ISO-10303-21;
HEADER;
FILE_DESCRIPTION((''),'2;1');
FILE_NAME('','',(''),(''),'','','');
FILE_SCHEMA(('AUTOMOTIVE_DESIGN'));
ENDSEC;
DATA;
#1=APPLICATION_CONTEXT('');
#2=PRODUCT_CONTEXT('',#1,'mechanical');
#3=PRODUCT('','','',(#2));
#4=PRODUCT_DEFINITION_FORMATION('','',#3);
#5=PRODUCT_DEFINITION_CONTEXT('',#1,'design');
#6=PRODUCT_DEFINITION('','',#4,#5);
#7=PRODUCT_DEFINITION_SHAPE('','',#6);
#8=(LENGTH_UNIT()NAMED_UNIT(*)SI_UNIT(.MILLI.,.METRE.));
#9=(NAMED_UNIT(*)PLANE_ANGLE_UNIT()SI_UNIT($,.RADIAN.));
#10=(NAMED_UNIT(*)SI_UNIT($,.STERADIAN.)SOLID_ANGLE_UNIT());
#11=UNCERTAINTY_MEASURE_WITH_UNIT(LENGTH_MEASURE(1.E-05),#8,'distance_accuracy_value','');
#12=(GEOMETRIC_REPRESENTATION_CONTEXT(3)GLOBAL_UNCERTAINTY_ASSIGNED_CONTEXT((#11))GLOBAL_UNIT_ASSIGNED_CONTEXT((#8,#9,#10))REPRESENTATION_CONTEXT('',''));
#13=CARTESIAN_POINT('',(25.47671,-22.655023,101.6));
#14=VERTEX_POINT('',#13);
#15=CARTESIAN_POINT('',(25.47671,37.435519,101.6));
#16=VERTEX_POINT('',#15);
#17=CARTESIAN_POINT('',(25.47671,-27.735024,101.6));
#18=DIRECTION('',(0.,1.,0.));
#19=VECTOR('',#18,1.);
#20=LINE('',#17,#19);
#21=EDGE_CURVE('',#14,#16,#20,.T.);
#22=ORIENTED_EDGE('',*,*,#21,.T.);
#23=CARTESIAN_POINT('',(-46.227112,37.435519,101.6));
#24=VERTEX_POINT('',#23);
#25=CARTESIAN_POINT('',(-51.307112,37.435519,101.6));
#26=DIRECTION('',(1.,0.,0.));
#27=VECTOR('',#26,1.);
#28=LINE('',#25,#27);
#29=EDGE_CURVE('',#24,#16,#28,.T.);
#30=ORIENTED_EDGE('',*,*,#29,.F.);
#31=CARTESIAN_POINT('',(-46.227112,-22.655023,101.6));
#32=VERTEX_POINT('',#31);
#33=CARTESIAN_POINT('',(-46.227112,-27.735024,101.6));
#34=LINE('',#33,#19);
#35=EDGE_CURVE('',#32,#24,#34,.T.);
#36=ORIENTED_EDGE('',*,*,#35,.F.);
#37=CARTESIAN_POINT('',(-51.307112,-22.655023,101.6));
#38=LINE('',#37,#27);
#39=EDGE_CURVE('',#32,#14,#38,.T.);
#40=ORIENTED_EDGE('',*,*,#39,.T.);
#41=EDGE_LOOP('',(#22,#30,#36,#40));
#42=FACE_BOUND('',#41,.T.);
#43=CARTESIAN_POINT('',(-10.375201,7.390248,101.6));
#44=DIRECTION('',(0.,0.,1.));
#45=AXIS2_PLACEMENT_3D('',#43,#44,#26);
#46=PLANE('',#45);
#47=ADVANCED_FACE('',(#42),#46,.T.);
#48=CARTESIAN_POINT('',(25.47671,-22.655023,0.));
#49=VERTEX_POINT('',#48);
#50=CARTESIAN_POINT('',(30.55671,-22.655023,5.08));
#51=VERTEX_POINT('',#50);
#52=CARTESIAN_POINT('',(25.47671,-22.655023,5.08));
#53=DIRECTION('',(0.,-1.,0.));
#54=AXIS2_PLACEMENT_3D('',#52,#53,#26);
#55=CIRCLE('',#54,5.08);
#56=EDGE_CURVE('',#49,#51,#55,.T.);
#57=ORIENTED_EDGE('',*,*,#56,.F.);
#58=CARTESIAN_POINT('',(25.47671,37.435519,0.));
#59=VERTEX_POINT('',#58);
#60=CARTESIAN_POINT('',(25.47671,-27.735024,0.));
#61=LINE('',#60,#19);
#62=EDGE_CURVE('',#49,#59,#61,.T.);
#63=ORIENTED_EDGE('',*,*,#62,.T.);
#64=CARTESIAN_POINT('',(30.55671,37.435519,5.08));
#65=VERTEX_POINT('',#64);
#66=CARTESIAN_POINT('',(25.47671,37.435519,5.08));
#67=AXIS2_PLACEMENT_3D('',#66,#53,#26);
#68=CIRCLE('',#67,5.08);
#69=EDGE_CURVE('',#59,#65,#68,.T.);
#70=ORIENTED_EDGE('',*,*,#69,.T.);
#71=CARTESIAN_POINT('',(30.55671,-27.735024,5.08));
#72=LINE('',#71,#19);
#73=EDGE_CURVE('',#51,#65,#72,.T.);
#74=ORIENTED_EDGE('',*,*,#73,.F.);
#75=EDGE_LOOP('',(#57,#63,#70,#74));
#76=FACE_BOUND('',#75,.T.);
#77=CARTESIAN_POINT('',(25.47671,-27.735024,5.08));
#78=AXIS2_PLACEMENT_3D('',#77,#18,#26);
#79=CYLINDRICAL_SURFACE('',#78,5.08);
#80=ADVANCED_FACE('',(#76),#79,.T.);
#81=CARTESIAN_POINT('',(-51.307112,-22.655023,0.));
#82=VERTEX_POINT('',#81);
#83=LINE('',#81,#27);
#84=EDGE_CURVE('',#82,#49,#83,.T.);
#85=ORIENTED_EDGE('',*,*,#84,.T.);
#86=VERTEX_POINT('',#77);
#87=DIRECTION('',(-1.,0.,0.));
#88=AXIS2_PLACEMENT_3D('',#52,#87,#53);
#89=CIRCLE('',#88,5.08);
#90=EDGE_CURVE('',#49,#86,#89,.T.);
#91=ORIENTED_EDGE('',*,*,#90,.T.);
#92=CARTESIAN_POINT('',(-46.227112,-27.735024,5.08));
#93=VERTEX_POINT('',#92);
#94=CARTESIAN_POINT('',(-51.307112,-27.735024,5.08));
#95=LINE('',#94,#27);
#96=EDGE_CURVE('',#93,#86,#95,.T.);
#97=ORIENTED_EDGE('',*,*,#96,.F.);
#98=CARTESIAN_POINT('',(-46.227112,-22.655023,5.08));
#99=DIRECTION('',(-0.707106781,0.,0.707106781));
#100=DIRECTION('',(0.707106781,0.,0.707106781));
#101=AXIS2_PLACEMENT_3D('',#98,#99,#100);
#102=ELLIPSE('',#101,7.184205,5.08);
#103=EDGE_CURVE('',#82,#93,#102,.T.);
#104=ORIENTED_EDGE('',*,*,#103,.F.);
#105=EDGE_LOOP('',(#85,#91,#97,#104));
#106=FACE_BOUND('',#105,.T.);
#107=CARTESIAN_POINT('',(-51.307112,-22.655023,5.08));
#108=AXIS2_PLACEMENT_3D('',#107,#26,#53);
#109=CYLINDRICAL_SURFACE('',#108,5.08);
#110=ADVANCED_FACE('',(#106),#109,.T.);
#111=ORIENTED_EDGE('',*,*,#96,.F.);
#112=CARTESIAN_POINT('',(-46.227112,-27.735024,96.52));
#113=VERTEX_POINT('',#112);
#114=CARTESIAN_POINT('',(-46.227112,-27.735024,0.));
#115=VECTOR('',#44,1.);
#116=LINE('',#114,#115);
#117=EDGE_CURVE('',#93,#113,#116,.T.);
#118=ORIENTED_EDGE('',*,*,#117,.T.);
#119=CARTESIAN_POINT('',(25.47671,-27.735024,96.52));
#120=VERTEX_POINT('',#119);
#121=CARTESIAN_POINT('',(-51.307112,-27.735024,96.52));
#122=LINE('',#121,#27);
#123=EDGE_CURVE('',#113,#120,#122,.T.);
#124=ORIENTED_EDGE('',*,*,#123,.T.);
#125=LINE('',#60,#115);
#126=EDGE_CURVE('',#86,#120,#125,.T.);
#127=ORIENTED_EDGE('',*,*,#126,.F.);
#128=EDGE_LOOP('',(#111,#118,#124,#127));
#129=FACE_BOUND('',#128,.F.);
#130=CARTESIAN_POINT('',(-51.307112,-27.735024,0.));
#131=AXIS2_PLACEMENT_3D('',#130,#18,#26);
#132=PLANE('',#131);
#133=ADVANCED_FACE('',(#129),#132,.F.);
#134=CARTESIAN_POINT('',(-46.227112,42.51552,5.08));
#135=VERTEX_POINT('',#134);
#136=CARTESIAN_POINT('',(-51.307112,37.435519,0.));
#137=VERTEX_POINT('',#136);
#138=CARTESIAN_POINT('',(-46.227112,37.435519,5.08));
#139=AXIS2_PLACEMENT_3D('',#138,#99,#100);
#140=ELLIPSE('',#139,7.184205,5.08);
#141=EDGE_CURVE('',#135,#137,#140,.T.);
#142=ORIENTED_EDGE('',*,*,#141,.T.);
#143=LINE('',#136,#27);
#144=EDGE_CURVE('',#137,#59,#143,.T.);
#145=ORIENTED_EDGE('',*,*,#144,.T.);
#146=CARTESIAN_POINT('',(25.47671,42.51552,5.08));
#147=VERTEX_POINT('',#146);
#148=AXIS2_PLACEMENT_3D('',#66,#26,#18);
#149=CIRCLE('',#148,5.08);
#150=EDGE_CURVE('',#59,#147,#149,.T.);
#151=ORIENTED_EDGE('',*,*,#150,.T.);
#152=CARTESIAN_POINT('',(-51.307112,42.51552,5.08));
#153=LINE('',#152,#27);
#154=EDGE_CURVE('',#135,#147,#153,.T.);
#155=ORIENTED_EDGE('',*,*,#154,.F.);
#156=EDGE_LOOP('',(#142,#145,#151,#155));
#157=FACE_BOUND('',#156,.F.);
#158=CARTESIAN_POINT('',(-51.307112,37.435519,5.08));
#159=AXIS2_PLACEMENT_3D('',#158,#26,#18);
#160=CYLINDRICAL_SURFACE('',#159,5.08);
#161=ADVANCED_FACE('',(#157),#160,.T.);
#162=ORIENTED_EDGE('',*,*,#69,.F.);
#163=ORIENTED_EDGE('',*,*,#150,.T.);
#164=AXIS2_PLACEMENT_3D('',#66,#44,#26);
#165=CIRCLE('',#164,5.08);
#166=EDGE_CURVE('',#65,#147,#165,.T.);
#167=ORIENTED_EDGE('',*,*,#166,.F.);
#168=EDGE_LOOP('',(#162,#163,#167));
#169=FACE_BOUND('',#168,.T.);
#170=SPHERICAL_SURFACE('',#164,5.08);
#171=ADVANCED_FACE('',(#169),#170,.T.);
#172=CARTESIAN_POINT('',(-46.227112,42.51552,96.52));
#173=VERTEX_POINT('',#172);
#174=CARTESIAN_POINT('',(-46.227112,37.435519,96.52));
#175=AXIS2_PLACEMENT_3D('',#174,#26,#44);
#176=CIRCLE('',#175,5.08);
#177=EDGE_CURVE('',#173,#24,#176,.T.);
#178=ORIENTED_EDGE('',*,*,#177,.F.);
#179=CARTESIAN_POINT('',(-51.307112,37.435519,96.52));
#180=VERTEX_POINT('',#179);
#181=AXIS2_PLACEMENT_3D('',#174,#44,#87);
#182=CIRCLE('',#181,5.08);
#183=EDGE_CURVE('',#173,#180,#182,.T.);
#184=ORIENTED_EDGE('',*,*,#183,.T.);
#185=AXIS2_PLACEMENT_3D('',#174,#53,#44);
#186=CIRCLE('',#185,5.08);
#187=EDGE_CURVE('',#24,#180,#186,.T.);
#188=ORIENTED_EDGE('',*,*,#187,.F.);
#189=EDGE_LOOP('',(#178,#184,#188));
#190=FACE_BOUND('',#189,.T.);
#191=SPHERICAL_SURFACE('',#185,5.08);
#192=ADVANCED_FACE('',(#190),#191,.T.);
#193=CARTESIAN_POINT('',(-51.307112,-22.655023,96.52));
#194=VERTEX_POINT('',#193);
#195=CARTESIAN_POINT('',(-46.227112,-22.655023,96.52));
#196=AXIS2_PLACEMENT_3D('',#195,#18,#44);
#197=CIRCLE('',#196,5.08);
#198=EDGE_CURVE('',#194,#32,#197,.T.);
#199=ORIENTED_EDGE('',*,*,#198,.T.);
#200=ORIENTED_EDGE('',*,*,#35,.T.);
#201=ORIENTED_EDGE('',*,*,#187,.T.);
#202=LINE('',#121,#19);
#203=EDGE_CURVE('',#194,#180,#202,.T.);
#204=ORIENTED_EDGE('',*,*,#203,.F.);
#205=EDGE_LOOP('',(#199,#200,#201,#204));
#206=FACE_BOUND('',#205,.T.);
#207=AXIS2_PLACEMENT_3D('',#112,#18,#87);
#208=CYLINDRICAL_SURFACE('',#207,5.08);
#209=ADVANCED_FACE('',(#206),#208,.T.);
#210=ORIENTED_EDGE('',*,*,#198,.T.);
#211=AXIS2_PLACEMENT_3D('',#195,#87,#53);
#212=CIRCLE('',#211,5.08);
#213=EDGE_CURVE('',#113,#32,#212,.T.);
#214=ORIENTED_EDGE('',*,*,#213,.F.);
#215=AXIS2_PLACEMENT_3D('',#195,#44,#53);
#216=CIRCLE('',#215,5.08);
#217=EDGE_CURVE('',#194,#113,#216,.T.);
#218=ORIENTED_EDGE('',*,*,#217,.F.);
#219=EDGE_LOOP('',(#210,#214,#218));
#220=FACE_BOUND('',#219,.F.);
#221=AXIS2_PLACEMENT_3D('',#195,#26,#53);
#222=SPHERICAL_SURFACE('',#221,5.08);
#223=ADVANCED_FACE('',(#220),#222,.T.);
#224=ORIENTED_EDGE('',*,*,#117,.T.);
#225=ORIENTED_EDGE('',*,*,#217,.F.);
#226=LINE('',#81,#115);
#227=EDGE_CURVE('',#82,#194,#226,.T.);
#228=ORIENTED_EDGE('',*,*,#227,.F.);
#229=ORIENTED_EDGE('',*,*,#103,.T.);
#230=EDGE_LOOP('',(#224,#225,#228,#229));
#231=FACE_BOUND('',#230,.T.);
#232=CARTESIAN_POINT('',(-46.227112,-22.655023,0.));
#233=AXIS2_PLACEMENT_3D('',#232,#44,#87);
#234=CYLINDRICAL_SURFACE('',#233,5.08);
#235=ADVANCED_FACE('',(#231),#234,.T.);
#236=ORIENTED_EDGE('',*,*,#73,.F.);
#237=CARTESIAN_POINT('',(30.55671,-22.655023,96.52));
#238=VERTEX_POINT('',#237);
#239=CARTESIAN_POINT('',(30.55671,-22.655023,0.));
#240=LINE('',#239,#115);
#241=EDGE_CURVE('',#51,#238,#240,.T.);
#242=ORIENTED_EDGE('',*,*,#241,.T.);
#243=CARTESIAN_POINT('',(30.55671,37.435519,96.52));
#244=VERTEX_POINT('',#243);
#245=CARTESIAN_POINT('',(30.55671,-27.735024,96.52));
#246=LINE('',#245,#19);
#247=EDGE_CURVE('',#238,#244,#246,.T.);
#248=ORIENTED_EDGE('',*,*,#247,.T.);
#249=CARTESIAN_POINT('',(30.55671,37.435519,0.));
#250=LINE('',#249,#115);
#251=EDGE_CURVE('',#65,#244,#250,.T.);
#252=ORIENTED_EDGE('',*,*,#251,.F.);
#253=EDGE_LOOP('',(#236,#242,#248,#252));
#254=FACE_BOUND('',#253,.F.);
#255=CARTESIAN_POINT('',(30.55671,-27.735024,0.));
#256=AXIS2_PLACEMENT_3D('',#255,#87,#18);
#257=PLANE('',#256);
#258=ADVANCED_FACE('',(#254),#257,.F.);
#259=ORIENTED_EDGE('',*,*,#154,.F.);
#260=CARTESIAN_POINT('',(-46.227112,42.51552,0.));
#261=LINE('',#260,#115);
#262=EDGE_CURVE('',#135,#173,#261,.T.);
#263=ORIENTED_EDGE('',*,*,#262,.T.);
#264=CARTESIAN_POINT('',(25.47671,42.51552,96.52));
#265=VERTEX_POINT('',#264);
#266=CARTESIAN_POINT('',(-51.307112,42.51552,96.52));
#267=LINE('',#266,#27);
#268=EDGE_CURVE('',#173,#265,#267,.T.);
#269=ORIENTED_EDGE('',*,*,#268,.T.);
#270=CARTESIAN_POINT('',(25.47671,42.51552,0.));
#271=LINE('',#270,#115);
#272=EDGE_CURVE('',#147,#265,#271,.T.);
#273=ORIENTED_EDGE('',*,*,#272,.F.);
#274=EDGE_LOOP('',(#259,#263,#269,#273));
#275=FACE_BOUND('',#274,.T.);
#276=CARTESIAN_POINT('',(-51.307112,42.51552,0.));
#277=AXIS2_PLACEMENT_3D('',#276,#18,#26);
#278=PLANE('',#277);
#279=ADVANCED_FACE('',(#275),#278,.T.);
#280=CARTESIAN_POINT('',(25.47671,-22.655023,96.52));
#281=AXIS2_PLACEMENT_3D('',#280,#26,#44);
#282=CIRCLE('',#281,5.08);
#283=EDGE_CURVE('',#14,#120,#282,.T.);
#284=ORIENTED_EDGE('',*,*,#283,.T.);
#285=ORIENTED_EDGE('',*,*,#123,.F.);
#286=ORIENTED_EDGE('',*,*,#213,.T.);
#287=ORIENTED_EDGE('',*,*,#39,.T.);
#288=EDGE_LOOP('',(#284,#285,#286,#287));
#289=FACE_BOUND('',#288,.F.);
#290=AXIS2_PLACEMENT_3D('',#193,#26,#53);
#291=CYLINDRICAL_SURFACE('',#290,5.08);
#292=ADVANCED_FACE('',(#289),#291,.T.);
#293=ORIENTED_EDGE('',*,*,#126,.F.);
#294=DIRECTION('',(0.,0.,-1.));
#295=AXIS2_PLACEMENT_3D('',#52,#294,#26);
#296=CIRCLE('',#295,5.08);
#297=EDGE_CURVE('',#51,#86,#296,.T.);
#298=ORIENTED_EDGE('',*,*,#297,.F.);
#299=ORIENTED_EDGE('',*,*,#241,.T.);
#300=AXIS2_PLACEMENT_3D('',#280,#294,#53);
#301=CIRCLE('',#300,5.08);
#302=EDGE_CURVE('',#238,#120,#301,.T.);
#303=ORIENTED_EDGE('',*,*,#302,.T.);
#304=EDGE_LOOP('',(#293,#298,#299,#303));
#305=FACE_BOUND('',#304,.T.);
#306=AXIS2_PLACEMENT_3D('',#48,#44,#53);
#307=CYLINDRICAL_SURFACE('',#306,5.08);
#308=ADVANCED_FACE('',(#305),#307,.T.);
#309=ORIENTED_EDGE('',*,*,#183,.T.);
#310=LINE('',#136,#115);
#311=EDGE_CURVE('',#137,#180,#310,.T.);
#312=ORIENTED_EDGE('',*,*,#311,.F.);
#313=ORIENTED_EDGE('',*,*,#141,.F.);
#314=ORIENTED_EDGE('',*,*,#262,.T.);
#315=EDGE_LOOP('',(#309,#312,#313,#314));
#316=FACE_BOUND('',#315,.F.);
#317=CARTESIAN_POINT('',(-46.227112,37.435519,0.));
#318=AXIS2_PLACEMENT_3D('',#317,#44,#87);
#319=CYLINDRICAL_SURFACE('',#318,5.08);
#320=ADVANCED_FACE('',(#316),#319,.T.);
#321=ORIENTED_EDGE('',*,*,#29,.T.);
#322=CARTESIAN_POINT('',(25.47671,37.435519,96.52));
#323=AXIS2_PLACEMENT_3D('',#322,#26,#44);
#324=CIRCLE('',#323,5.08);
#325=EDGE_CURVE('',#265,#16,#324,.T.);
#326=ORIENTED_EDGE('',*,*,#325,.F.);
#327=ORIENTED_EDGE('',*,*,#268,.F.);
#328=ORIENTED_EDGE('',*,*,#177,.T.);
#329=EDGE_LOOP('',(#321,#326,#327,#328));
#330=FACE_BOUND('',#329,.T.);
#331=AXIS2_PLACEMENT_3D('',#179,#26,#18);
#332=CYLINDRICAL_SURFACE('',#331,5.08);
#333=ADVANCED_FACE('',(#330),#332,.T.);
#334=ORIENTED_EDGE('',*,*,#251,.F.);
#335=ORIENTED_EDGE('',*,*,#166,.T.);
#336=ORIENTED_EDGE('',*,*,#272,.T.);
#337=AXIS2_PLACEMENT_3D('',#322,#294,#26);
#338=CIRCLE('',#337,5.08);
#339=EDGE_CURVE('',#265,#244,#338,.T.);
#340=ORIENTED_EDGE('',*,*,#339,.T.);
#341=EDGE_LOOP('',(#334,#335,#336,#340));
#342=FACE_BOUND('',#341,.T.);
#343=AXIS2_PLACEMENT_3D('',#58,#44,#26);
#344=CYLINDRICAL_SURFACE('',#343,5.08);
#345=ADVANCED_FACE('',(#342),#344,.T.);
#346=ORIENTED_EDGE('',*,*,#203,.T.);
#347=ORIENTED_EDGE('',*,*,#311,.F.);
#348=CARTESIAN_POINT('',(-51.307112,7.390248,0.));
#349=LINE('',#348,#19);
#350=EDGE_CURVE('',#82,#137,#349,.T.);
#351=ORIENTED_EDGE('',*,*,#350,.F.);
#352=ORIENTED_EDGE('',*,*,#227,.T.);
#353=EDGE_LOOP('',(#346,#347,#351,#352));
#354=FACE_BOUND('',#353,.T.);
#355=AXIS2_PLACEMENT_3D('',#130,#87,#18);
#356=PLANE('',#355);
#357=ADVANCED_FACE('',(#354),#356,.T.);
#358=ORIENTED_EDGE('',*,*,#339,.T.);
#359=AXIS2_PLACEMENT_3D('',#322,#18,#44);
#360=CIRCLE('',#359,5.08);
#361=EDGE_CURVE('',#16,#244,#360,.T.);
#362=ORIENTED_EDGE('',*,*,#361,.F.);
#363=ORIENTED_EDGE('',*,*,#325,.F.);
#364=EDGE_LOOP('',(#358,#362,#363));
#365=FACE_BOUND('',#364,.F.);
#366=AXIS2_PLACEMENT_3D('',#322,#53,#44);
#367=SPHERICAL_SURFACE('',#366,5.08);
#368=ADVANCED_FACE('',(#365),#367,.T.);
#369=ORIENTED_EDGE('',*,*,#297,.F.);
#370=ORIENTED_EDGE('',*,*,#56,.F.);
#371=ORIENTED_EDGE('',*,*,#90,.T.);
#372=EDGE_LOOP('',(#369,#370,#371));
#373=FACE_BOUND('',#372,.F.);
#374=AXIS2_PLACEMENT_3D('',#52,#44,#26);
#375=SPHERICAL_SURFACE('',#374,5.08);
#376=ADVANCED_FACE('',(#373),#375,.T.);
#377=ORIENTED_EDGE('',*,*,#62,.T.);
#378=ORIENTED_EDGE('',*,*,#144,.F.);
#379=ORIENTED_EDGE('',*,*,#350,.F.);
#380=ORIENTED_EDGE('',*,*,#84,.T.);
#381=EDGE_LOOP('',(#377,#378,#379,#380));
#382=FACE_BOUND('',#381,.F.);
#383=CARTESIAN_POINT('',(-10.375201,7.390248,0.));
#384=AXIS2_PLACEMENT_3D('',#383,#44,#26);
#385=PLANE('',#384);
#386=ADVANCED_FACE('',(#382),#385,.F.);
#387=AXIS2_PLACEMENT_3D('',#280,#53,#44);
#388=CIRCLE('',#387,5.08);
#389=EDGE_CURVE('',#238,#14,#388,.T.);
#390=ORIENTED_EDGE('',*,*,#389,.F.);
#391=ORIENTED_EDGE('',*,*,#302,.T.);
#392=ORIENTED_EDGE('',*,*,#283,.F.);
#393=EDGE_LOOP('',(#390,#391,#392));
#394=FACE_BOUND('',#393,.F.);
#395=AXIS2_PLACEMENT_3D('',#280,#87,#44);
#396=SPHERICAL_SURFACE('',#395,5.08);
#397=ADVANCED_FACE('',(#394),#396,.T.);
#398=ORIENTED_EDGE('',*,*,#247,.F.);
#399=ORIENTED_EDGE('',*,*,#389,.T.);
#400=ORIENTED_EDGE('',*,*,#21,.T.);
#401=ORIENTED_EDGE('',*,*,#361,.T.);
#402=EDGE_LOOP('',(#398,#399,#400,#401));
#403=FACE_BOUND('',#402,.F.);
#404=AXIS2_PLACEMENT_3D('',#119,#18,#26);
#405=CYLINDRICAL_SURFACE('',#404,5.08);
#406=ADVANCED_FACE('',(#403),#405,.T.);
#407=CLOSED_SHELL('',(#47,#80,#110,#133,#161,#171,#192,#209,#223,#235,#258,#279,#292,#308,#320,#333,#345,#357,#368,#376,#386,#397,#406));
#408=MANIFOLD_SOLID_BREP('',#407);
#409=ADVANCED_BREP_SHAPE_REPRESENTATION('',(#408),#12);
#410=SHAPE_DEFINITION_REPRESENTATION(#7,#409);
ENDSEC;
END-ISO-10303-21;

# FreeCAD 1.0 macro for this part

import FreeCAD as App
import Part
import Sketcher

V = App.Vector
Q = App.Units.Quantity


def edges_at(feature, points):
    """Names of the edges that pass closest to the given points."""
    edges = feature.Shape.Edges
    near = lambda p: min(range(len(edges)), key=lambda i: edges[i].distToShape(Part.Vertex(*p))[0])
    return sorted({f"Edge{near(p) + 1}" for p in points})

doc = App.newDocument("Part")
body = doc.addObject("PartDesign::Body", "Body")

sketch1 = body.newObject("Sketcher::SketchObject", "Sketch")
sketch1.AttachmentSupport = (doc.getObject("XY_Plane"), [""])
sketch1.MapMode = "FlatFace"
sketch1.addGeometry(Part.LineSegment(V(-51, 43, 0), V(-51, -28, 0)), False)
sketch1.addGeometry(Part.LineSegment(V(-51, -28, 0), V(31, -28, 0)), False)
sketch1.addGeometry(Part.LineSegment(V(31, -28, 0), V(31, 43, 0)), False)
sketch1.addGeometry(Part.LineSegment(V(31, 43, 0), V(-51, 43, 0)), False)
sketch1.addConstraint(Sketcher.Constraint("Coincident", 0, 2, 1, 1))
sketch1.addConstraint(Sketcher.Constraint("Coincident", 1, 2, 2, 1))
sketch1.addConstraint(Sketcher.Constraint("Coincident", 2, 2, 3, 1))
sketch1.addConstraint(Sketcher.Constraint("Coincident", 3, 2, 0, 1))
sketch1.addConstraint(Sketcher.Constraint("Vertical", 0))
sketch1.addConstraint(Sketcher.Constraint("Horizontal", 1))
sketch1.addConstraint(Sketcher.Constraint("Vertical", 2))
sketch1.addConstraint(Sketcher.Constraint("Horizontal", 3))
sketch1.addConstraint(Sketcher.Constraint("DistanceX", 1, 1, 1, 2, Q("81.863822 mm")))
sketch1.addConstraint(Sketcher.Constraint("DistanceY", 0, 2, 0, 1, Q("70.250543 mm")))
sketch1.addConstraint(Sketcher.Constraint("DistanceX", 0, 2, -1, 1, Q("51.307112 mm")))
sketch1.addConstraint(Sketcher.Constraint("DistanceY", -1, 1, 2, 2, Q("42.51552 mm")))
pad1 = body.newObject("PartDesign::Pad", "Pad")
pad1.Profile = sketch1
pad1.Length = Q("4 in")
doc.recompute()

fillet = body.newObject("PartDesign::Fillet", "Fillet")
fillet.Base = (pad1, edges_at(pad1, [
    (-10.375, -27.735, 101.6),
    (30.557, 7.39, 101.6),
    (30.557, -27.735, 50.8),
    (-51.307, -27.735, 50.8),
    (-51.307, 7.39, 101.6),
    (-10.375, 42.516, 101.6),
    (30.557, 42.516, 50.8),
    (30.557, 7.39, 0),
    (-10.375, -27.735, 0),
    (-10.375, 42.516, 0),
    (-51.307, 42.516, 50.8),
]))
fillet.Radius = Q("0.2 in")

doc.recompute()
